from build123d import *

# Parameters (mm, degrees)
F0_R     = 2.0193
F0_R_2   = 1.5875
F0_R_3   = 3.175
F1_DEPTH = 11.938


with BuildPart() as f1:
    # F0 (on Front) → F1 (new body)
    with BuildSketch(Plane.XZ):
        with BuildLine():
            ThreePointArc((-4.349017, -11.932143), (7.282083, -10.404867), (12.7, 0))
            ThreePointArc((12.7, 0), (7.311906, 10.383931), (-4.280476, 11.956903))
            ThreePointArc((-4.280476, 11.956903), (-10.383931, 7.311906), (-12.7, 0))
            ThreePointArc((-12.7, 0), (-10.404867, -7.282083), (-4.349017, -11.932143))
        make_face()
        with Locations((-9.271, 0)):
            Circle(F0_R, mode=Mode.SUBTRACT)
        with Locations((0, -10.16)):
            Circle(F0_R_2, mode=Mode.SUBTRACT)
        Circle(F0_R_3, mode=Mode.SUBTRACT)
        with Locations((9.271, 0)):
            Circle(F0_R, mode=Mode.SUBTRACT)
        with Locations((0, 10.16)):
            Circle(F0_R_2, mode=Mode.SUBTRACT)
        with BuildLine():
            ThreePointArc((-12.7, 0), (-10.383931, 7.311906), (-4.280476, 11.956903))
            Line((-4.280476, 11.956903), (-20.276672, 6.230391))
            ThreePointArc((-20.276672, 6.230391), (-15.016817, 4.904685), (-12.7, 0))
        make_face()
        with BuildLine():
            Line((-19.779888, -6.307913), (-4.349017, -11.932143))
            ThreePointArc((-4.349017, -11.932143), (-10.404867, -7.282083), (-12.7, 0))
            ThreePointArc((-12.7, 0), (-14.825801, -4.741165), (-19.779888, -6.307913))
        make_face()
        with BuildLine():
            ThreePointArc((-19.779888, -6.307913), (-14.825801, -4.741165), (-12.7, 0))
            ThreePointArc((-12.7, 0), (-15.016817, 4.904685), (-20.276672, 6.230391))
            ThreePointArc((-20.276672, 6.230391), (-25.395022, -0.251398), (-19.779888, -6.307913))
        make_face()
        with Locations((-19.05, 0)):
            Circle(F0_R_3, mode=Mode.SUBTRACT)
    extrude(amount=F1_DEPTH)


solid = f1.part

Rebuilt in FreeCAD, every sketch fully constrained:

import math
import FreeCAD as App
import Part
import Sketcher

V = App.Vector
Q = App.Units.Quantity

doc = App.newDocument("Part")
body = doc.addObject("PartDesign::Body", "Body")

# Sketch on XZ plane
sketch1 = body.newObject("Sketcher::SketchObject", "Sketch")
sketch1.AttachmentSupport = (doc.getObject("XZ_Plane"), [""])
sketch1.MapMode = "FlatFace"
sketch1.addGeometry(Part.ArcOfCircle(Part.Circle(V(0, 0, 0), V(0, 0, 1), 12.7), math.radians(-110), math.radians(0)), False)
sketch1.addGeometry(Part.ArcOfCircle(Part.Circle(V(0, 0, 0), V(0, 0, 1), 12.7), math.radians(0), math.radians(110)), False)
sketch1.addGeometry(Part.LineSegment(V(-4.3, 12, 0), V(-20.3, 6.2, 0)), False)
sketch1.addGeometry(Part.ArcOfCircle(Part.Circle(V(-19.1, 0, 0), V(0, 0, 1), 6.3), math.radians(101), math.radians(263)), False)
sketch1.addGeometry(Part.LineSegment(V(-19.8, -6.3, 0), V(-4.3, -11.9, 0)), False)
sketch1.addGeometry(Part.Circle(V(-19.1, 0, 0), V(0, 0, 1), 3.2), False)
sketch1.addGeometry(Part.Circle(V(-9.3, 0, 0), V(0, 0, 1), 2), False)
sketch1.addGeometry(Part.Circle(V(0, -10.2, 0), V(0, 0, 1), 1.6), False)
sketch1.addGeometry(Part.Circle(V(0, 0, 0), V(0, 0, 1), 3.2), False)
sketch1.addGeometry(Part.Circle(V(9.3, 0, 0), V(0, 0, 1), 2), False)
sketch1.addGeometry(Part.Circle(V(0, 10.2, 0), V(0, 0, 1), 1.6), False)
sketch1.addConstraint(Sketcher.Constraint("Tangent", 0, 2, 1, 1))
sketch1.addConstraint(Sketcher.Constraint("Tangent", 1, 2, 2, 1))
sketch1.addConstraint(Sketcher.Constraint("Coincident", 2, 2, 3, 1))
sketch1.addConstraint(Sketcher.Constraint("Coincident", 3, 2, 4, 1))
sketch1.addConstraint(Sketcher.Constraint("Tangent", 4, 2, 0, 1))
sketch1.addConstraint(Sketcher.Constraint("Coincident", 0, 3, -1, 1))
sketch1.addConstraint(Sketcher.Constraint("Coincident", 8, 3, -1, 1))
sketch1.addConstraint(Sketcher.Constraint("Coincident", 5, 3, 3, 3))
sketch1.addConstraint(Sketcher.Constraint("Equal", 0, 1))
sketch1.addConstraint(Sketcher.Constraint("Equal", 5, 8))
sketch1.addConstraint(Sketcher.Constraint("Equal", 6, 9))
sketch1.addConstraint(Sketcher.Constraint("Equal", 7, 10))
sketch1.addConstraint(Sketcher.Constraint("Symmetric", 6, 3, 9, 3, -1, 1))
sketch1.addConstraint(Sketcher.Constraint("Symmetric", 7, 3, 10, 3, -1, 1))
sketch1.addConstraint(Sketcher.Constraint("PointOnObject", 3, 3, -1))
sketch1.addConstraint(Sketcher.Constraint("PointOnObject", 6, 3, -1))
sketch1.addConstraint(Sketcher.Constraint("PointOnObject", 7, 3, -2))
sketch1.addConstraint(Sketcher.Constraint("PointOnObject", 0, 2, -1))
sketch1.addConstraint(Sketcher.Constraint("Radius", 0, Q("0.5 in")))
sketch1.addConstraint(Sketcher.Constraint("Diameter", 5, Q("0.25 in")))
sketch1.addConstraint(Sketcher.Constraint("Radius", 3, Q("0.25 in")))
sketch1.addConstraint(Sketcher.Constraint("Diameter", 6, Q("0.159 in")))
sketch1.addConstraint(Sketcher.Constraint("Diameter", 7, Q("0.125 in")))
sketch1.addConstraint(Sketcher.Constraint("DistanceY", 7, 3, -1, 1, Q("0.4 in")))
sketch1.addConstraint(Sketcher.Constraint("DistanceX", 3, 3, -1, 1, Q("0.75 in")))
sketch1.addConstraint(Sketcher.Constraint("DistanceX", 6, 3, 9, 3, Q("0.73 in")))
sketch1.addConstraint(Sketcher.Constraint("DistanceY", -1, 1, 2, 2, 6.230391))
sketch1.addConstraint(Sketcher.Constraint("Distance", 4, 16.423877))
pad1 = body.newObject("PartDesign::Pad", "Pad")
pad1.Profile = sketch1
pad1.Length = Q("0.47 in")

doc.recompute()
